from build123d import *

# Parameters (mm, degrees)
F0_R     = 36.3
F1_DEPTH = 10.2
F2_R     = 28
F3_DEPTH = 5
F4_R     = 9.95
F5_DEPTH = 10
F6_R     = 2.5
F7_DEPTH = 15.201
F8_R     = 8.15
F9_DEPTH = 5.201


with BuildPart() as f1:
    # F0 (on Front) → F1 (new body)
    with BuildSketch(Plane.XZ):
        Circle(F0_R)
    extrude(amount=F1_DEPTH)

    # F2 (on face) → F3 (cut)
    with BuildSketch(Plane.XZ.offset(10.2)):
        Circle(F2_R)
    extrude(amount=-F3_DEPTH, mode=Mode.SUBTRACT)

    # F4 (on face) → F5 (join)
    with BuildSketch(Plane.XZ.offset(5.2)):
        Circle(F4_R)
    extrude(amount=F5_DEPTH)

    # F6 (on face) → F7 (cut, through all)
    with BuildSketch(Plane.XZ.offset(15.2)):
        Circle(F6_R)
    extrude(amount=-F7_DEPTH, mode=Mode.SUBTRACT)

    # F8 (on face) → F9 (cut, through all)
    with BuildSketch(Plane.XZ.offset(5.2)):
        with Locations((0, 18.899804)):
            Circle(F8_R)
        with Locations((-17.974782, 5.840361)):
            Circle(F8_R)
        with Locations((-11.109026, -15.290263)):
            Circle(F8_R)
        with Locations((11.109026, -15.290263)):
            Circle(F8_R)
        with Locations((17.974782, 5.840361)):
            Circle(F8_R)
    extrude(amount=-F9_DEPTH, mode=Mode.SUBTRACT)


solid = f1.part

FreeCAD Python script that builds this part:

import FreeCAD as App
import Part
import Sketcher

V = App.Vector

doc = App.newDocument("Part")
body = doc.addObject("PartDesign::Body", "Body")

sketch1 = body.newObject("Sketcher::SketchObject", "Sketch")
sketch1.AttachmentSupport = (doc.getObject("XZ_Plane"), [""])
sketch1.MapMode = "FlatFace"
sketch1.addGeometry(Part.Circle(V(0, 0, 0), V(0, 0, 1), 36), False)
sketch1.addConstraint(Sketcher.Constraint("Coincident", 0, 3, -1, 1))
sketch1.addConstraint(Sketcher.Constraint("Diameter", 0, 72.6))
pad1 = body.newObject("PartDesign::Pad", "Pad")
pad1.Profile = sketch1
pad1.Length = 10.2

sketch2 = body.newObject("Sketcher::SketchObject", "Sketch001")
sketch2.AttachmentSupport = (doc.getObject("XZ_Plane"), [""])
sketch2.MapMode = "FlatFace"
sketch2.AttachmentOffset = App.Placement(V(0, 0, 10.2), App.Rotation())
sketch2.addGeometry(Part.Circle(V(0, 0, 0), V(0, 0, 1), 28), False)
sketch2.addConstraint(Sketcher.Constraint("Coincident", 0, 3, -1, 1))
sketch2.addConstraint(Sketcher.Constraint("Diameter", 0, 56.0))
pocket1 = body.newObject("PartDesign::Pocket", "Pocket")
pocket1.Profile = sketch2
pocket1.Length = 5

sketch3 = body.newObject("Sketcher::SketchObject", "Sketch002")
sketch3.AttachmentSupport = (doc.getObject("XZ_Plane"), [""])
sketch3.MapMode = "FlatFace"
sketch3.AttachmentOffset = App.Placement(V(0, 0, 5.2), App.Rotation())
sketch3.addGeometry(Part.Circle(V(0, 0, 0), V(0, 0, 1), 10), False)
sketch3.addConstraint(Sketcher.Constraint("Coincident", 0, 3, -1, 1))
sketch3.addConstraint(Sketcher.Constraint("Diameter", 0, 19.9))
pad2 = body.newObject("PartDesign::Pad", "Pad001")
pad2.Profile = sketch3
pad2.Length = 10

sketch4 = body.newObject("Sketcher::SketchObject", "Sketch003")
sketch4.AttachmentSupport = (doc.getObject("XZ_Plane"), [""])
sketch4.MapMode = "FlatFace"
sketch4.AttachmentOffset = App.Placement(V(0, 0, 15.2), App.Rotation())
sketch4.addGeometry(Part.Circle(V(0, 0, 0), V(0, 0, 1), 2.5), False)
sketch4.addConstraint(Sketcher.Constraint("Coincident", 0, 3, -1, 1))
sketch4.addConstraint(Sketcher.Constraint("Diameter", 0, 5.0))
pocket2 = body.newObject("PartDesign::Pocket", "Pocket001")
pocket2.Profile = sketch4
pocket2.Type = "ThroughAll"

sketch5 = body.newObject("Sketcher::SketchObject", "Sketch004")
sketch5.AttachmentSupport = (doc.getObject("XZ_Plane"), [""])
sketch5.MapMode = "FlatFace"
sketch5.AttachmentOffset = App.Placement(V(0, 0, 5.2), App.Rotation())
sketch5.addGeometry(Part.Circle(V(0, 19, 0), V(0, 0, 1), 8), False)
sketch5.addGeometry(Part.Circle(V(-18, 6, 0), V(0, 0, 1), 8), False)
sketch5.addGeometry(Part.Circle(V(-11, -15, 0), V(0, 0, 1), 8), False)
sketch5.addGeometry(Part.Circle(V(11, -15, 0), V(0, 0, 1), 8), False)
sketch5.addGeometry(Part.Circle(V(18, 6, 0), V(0, 0, 1), 8), False)
sketch5.addConstraint(Sketcher.Constraint("Equal", 0, 1))
sketch5.addConstraint(Sketcher.Constraint("Equal", 1, 2))
sketch5.addConstraint(Sketcher.Constraint("Equal", 2, 3))
sketch5.addConstraint(Sketcher.Constraint("Equal", 3, 4))
sketch5.addConstraint(Sketcher.Constraint("Symmetric", 2, 3, 3, 3, -2))
sketch5.addConstraint(Sketcher.Constraint("Symmetric", 1, 3, 4, 3, -2))
sketch5.addConstraint(Sketcher.Constraint("PointOnObject", 0, 3, -2))
sketch5.addConstraint(Sketcher.Constraint("Diameter", 0, 16.3))
sketch5.addConstraint(Sketcher.Constraint("DistanceY", -1, 1, 1, 3, 5.840361))
sketch5.addConstraint(Sketcher.Constraint("DistanceX", 2, 3, 3, 3, 22.218052))
sketch5.addConstraint(Sketcher.Constraint("DistanceX", 1, 3, 3, 3, 29.083808))
sketch5.addConstraint(Sketcher.Constraint("DistanceY", -1, 1, 0, 3, 18.899804))
sketch5.addConstraint(Sketcher.Constraint("DistanceY", 2, 3, -1, 1, 15.290263))
pocket3 = body.newObject("PartDesign::Pocket", "Pocket002")
pocket3.Profile = sketch5
pocket3.Type = "ThroughAll"

doc.recompute()
